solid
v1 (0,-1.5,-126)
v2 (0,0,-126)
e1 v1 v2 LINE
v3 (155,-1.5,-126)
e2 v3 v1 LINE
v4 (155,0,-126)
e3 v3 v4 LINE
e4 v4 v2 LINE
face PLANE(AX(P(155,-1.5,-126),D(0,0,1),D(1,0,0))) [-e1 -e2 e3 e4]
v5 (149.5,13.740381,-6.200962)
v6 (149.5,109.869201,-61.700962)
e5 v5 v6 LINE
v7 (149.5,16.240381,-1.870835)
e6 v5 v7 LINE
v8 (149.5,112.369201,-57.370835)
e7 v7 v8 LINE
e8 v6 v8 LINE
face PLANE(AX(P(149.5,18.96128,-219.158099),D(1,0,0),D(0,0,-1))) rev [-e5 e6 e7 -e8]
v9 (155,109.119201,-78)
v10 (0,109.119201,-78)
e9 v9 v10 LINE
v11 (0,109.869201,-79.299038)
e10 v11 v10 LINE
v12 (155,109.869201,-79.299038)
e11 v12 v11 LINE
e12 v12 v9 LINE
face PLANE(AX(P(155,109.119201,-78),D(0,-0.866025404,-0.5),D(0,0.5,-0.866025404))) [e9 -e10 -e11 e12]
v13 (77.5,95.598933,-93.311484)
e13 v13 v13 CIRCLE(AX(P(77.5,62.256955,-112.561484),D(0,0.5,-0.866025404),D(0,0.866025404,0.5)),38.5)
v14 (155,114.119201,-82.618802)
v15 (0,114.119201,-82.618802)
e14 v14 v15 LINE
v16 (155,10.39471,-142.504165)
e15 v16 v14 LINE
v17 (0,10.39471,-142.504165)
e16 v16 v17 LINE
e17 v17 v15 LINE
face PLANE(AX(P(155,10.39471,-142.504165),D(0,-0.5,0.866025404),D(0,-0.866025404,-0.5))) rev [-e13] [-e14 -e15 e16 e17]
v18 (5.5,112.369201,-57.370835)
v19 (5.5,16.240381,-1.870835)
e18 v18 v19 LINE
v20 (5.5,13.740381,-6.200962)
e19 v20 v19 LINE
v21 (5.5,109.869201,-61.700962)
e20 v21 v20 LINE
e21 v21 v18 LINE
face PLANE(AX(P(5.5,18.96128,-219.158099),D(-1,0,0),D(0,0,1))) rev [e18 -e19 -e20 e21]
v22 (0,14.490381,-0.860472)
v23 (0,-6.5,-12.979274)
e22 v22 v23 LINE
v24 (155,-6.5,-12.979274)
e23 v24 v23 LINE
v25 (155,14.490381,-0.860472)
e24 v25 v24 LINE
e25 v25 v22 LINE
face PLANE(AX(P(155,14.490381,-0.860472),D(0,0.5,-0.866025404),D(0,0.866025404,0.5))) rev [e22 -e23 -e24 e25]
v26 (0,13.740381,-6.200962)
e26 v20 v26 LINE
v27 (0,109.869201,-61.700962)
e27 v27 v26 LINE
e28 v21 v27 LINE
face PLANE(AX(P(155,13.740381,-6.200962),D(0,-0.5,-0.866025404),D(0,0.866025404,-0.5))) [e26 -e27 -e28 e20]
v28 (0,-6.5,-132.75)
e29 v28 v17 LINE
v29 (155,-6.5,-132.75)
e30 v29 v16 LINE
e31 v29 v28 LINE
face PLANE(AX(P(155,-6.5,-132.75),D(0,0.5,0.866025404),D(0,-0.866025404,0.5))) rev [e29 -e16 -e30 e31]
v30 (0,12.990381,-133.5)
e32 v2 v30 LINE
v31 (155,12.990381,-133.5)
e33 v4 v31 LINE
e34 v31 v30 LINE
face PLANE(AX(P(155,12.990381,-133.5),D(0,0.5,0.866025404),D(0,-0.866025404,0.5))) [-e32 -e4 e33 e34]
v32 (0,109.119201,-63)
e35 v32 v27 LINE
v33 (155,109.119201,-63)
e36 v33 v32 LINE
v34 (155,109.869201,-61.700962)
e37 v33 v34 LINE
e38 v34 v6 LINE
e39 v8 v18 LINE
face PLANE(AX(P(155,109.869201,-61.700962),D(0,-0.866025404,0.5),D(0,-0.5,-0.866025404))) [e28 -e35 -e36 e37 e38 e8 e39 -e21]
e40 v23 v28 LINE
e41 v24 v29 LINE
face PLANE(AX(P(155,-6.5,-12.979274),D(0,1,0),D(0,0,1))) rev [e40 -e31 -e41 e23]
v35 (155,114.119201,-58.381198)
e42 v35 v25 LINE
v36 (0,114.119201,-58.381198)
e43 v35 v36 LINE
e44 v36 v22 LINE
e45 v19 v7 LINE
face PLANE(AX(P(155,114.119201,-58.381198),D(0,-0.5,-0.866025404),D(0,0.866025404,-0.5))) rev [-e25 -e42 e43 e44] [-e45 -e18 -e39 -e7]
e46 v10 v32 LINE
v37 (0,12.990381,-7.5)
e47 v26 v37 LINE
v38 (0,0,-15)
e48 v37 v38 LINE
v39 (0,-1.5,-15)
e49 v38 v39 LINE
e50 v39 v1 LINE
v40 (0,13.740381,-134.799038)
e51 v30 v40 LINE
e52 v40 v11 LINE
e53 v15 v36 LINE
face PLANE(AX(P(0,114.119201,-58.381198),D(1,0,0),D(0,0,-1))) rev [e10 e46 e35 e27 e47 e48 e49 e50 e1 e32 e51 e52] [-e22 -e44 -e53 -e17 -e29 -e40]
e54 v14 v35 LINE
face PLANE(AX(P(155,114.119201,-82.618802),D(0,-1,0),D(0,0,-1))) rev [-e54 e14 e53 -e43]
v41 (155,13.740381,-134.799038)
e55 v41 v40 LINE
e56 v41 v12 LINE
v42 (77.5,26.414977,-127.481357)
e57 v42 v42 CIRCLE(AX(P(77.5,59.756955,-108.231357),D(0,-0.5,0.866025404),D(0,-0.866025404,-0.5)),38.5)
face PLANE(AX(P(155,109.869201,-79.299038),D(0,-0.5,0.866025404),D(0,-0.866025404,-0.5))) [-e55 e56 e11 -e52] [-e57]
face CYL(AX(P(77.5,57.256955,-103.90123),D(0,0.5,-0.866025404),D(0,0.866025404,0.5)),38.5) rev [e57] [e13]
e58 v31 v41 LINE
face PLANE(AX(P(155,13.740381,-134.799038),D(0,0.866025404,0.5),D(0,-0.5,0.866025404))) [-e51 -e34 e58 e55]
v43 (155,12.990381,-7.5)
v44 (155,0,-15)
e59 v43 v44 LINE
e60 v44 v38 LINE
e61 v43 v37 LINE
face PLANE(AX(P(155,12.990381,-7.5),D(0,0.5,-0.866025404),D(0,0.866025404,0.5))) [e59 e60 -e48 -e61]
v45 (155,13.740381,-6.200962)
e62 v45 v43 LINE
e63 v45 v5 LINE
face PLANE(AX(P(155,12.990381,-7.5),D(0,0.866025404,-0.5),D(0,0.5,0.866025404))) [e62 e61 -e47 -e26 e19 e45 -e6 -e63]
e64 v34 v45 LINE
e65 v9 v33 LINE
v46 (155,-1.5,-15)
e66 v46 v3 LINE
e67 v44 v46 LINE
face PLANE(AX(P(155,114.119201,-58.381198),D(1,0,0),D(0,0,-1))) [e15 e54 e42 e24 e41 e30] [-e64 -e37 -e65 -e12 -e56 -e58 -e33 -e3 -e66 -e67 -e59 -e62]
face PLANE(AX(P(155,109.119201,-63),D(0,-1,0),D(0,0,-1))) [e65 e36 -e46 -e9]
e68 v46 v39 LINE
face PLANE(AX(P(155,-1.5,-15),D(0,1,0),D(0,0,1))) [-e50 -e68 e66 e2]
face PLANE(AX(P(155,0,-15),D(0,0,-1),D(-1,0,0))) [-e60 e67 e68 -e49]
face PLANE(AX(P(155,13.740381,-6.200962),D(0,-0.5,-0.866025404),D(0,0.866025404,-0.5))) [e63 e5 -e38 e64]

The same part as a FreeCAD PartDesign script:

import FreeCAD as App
import Part
import Sketcher
Q = App.Units.Quantity


def add_polygon(sketch, points):
    """Adds a closed chain of lines whose ends are joined by coincident constraints."""
    first, n = sketch.GeometryCount, len(points)
    for a, b in zip(points, points[1:] + points[:1]):
        sketch.addGeometry(Part.LineSegment(App.Vector(*a, 0), App.Vector(*b, 0)), False)
    for i in range(n):
        sketch.addConstraint(Sketcher.Constraint("Coincident", first + i, 2, first + (i + 1) % n, 1))

doc = App.newDocument("Part")
body = doc.addObject("PartDesign::Body", "Body")

# Sketch on YZ plane
sketch1 = doc.addObject("Sketcher::SketchObject", "Sketch")
body.addObject(sketch1)
sketch1.AttachmentSupport = (doc.YZ_Plane, [""])
sketch1.MapMode = "FlatFace"
add_polygon(sketch1, [(114.1, -58.4), (14.5, -0.9), (-6.5, -13), (-6.5, -132.8), (10.4, -142.5), (114.1, -82.6)])  # lines 0-5
add_polygon(sketch1, [(0, -15), (13, -7.5), (13.7, -6.2), (109.9, -61.7), (109.1, -63), (109.1, -78), (109.9, -79.3), (13.7, -134.8), (13, -133.5), (0, -126), (-1.5, -126), (-1.5, -15)])  # lines 6-17
sketch1.addConstraint(Sketcher.Constraint("Vertical", 2))
sketch1.addConstraint(Sketcher.Constraint("Vertical", 5))
sketch1.addConstraint(Sketcher.Constraint("Vertical", 10))
sketch1.addConstraint(Sketcher.Constraint("Horizontal", 15))
sketch1.addConstraint(Sketcher.Constraint("Vertical", 16))
sketch1.addConstraint(Sketcher.Constraint("Horizontal", 17))
sketch1.addConstraint(Sketcher.Constraint("PointOnObject", 14, 2, -2))
sketch1.addConstraint(Sketcher.Constraint("PointOnObject", 17, 2, -2))
sketch1.addConstraint(Sketcher.Constraint("Parallel", 0, 3))
sketch1.addConstraint(Sketcher.Constraint("Parallel", 1, 4))
sketch1.addConstraint(Sketcher.Constraint("Parallel", 4, 6))
sketch1.addConstraint(Sketcher.Constraint("Perpendicular", 3, 7))
sketch1.addConstraint(Sketcher.Constraint("Perpendicular", 7, 8))
sketch1.addConstraint(Sketcher.Constraint("Perpendicular", 8, 9))
sketch1.addConstraint(Sketcher.Constraint("Perpendicular", 6, 11))
sketch1.addConstraint(Sketcher.Constraint("Perpendicular", 11, 12))
sketch1.addConstraint(Sketcher.Constraint("Perpendicular", 12, 13))
sketch1.addConstraint(Sketcher.Constraint("Perpendicular", 9, 14))
sketch1.addConstraint(Sketcher.Constraint("Vertical", 8, 2, 11, 2))
sketch1.addConstraint(Sketcher.Constraint("Vertical", 7, 2, 12, 2))
sketch1.addConstraint(Sketcher.Constraint("Vertical", 6, 2, 13, 2))
sketch1.addConstraint(Sketcher.Constraint("Equal", 7, 9))
sketch1.addConstraint(Sketcher.Constraint("Equal", 9, 11))
sketch1.addConstraint(Sketcher.Constraint("DistanceY", 10, 2, 10, 1, 15.0))
sketch1.addConstraint(Sketcher.Constraint("DistanceY", 16, 1, 16, 2, 111.0))
sketch1.addConstraint(Sketcher.Constraint("Angle", 0, Q("150 deg")))
sketch1.addConstraint(Sketcher.Constraint("Distance", 6, 15.0))
sketch1.addConstraint(Sketcher.Constraint("DistanceX", 15, 2, 15, 1, 1.5))
sketch1.addConstraint(Sketcher.Constraint("DistanceY", 9, 2, -1, 1, 63.0))
sketch1.addConstraint(Sketcher.Constraint("DistanceX", 9, 2, 5, 2, 5.0))
sketch1.addConstraint(Sketcher.Constraint("DistanceX", 2, 2, 15, 2, 5.0))
sketch1.addConstraint(Sketcher.Constraint("Distance", 7, 1.5))
sketch1.addConstraint(Sketcher.Constraint("DistanceX", 6, 2, 0, 2, 1.5))
sketch1.addConstraint(Sketcher.Constraint("DistanceY", 2, 2, -1, 1, 132.75))
sketch1.addConstraint(Sketcher.Constraint("Distance", 3, 19.50833))
sketch1.addConstraint(Sketcher.Constraint("DistanceY", 2, 2, 2, 1, 119.770726))
pad1 = doc.addObject("PartDesign::Pad", "Pad")
body.addObject(pad1)
pad1.Profile = sketch1
pad1.Length = 155

# Sketch on an angled plane
sketch2 = doc.addObject("Sketcher::SketchObject", "Sketch001")
body.addObject(sketch2)
sketch2.Placement = App.Placement(App.Vector(0, 3.25, 5.629165), App.Rotation(App.Vector(1, 0, 0), App.Vector(0, 0.866025404, -0.5), App.Vector(0, 0.5, 0.866025404), "ZXY"))
add_polygon(sketch2, [(6, 126), (6, 15), (150, 15), (150, 126)])  # lines 0-3
sketch2.addConstraint(Sketcher.Constraint("Vertical", 0))
sketch2.addConstraint(Sketcher.Constraint("Horizontal", 1))
sketch2.addConstraint(Sketcher.Constraint("Vertical", 2))
sketch2.addConstraint(Sketcher.Constraint("Horizontal", 3))
sketch2.addConstraint(Sketcher.Constraint("DistanceX", 1, 1, 1, 2, 144.0))
sketch2.addConstraint(Sketcher.Constraint("DistanceY", 0, 2, 0, 1, 111.0))
sketch2.addConstraint(Sketcher.Constraint("DistanceY", -1, 1, 0, 2, 15.0))
sketch2.addConstraint(Sketcher.Constraint("DistanceX", -1, 1, 0, 2, 5.5))
pocket1 = doc.addObject("PartDesign::Pocket", "Pocket")
body.addObject(pocket1)
pocket1.Profile = sketch2
pocket1.Length = 5

# Sketch on an angled plane
sketch3 = doc.addObject("Sketcher::SketchObject", "Sketch002")
body.addObject(sketch3)
sketch3.Placement = App.Placement(App.Vector(0, 64.304791, -111.379165), App.Rotation(App.Vector(-1, 0, 0), App.Vector(0, 0.866025404, 0.5), App.Vector(0, 0.5, -0.866025404), "ZXY"))
sketch3.addGeometry(Part.Circle(App.Vector(-78, -2, 0), App.Vector(0, 0, 1), 38), False)
sketch3.addConstraint(Sketcher.Constraint("Diameter", 0, 77.0))
sketch3.addConstraint(Sketcher.Constraint("DistanceX", 0, 3, -1, 1, 77.5))
sketch3.addConstraint(Sketcher.Constraint("DistanceY", 0, 3, -1, 1, 2.364637))
pocket2 = doc.addObject("PartDesign::Pocket", "Pocket001")
body.addObject(pocket2)
pocket2.Profile = sketch3
pocket2.Length = 10

doc.recompute()
